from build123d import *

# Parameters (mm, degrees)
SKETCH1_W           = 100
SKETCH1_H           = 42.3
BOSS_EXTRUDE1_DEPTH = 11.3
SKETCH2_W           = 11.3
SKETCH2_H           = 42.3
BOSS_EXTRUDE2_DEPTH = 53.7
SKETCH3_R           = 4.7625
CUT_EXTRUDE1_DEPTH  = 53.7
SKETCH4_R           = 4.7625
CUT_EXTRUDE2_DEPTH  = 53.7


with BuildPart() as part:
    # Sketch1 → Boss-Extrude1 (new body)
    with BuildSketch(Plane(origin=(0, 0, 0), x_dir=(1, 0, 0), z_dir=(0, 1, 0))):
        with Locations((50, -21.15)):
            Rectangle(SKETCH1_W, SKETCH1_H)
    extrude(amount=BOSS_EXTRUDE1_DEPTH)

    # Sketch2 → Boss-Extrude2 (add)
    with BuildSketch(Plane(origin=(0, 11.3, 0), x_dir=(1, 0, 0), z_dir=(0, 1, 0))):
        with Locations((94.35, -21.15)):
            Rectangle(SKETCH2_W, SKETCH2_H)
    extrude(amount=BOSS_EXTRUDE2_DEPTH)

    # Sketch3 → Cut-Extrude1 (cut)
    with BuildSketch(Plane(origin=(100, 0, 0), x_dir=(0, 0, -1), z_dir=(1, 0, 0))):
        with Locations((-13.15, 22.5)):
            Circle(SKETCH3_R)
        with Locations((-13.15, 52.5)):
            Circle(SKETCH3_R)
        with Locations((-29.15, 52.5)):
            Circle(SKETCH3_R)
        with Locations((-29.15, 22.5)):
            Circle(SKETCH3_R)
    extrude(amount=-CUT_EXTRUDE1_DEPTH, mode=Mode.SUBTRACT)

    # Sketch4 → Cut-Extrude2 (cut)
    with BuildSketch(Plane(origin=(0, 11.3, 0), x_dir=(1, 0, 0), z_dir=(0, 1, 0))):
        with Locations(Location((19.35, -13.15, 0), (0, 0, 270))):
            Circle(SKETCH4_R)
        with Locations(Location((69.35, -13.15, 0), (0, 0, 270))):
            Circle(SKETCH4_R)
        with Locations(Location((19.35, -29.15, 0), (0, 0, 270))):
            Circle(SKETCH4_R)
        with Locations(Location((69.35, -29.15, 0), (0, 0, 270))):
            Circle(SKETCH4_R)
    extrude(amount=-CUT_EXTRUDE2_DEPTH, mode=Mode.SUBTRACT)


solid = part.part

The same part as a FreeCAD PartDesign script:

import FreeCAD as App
import Part
import Sketcher
Q = App.Units.Quantity


def add_polygon(sketch, points):
    """Adds a closed chain of lines whose ends are joined by coincident constraints."""
    first, n = sketch.GeometryCount, len(points)
    for a, b in zip(points, points[1:] + points[:1]):
        sketch.addGeometry(Part.LineSegment(App.Vector(*a, 0), App.Vector(*b, 0)), False)
    for i in range(n):
        sketch.addConstraint(Sketcher.Constraint("Coincident", first + i, 2, first + (i + 1) % n, 1))

doc = App.newDocument("Part")
body = doc.addObject("PartDesign::Body", "Body")

# Sketch on XZ plane
sketch1 = body.newObject("Sketcher::SketchObject", "Sketch")
sketch1.AttachmentSupport = (doc.getObject("XZ_Plane"), [""])
sketch1.MapMode = "FlatFace"
add_polygon(sketch1, [(0, 0), (0, 42.3), (100, 42.3), (100, 0)])  # lines 0-3
sketch1.addConstraint([
    Sketcher.Constraint("Vertical", 0),
    Sketcher.Constraint("Horizontal", 1),
    Sketcher.Constraint("Vertical", 2),
    Sketcher.Constraint("Horizontal", 3),
    Sketcher.Constraint("Coincident", 3, 2, -1, 1),
    Sketcher.Constraint("DistanceX", 1, 1, 1, 2, Q("100 mm")),
    Sketcher.Constraint("DistanceY", 0, 1, 0, 2, Q("42.3 mm")),
])
pad1 = body.newObject("PartDesign::Pad", "Pad")
pad1.Profile = sketch1
pad1.Length = 11.3
pad1.Reversed = True

# Sketch on XZ plane
sketch2 = body.newObject("Sketcher::SketchObject", "Sketch001")
sketch2.AttachmentSupport = (doc.getObject("XZ_Plane"), [""])
sketch2.MapMode = "FlatFace"
sketch2.AttachmentOffset = App.Placement(App.Vector(0, 0, -11.3), App.Rotation())
add_polygon(sketch2, [(88.7, 0), (88.7, 42.3), (100, 42.3), (100, 0)])  # lines 0-3
sketch2.addConstraint([
    Sketcher.Constraint("Vertical", 0),
    Sketcher.Constraint("Horizontal", 1),
    Sketcher.Constraint("Vertical", 2),
    Sketcher.Constraint("Horizontal", 3),
    Sketcher.Constraint("PointOnObject", 2, 2, -1),
    Sketcher.Constraint("DistanceX", 1, 1, 1, 2, Q("11.3 mm")),
    Sketcher.Constraint("DistanceY", 0, 1, 0, 2, Q("42.3 mm")),
    Sketcher.Constraint("DistanceX", -1, 1, 1, 2, Q("100 mm")),
])
pad2 = body.newObject("PartDesign::Pad", "Pad001")
pad2.Profile = sketch2
pad2.Length = 53.7
pad2.Reversed = True

# Sketch on YZ plane
sketch3 = body.newObject("Sketcher::SketchObject", "Sketch002")
sketch3.AttachmentSupport = (doc.getObject("YZ_Plane"), [""])
sketch3.MapMode = "FlatFace"
sketch3.AttachmentOffset = App.Placement(App.Vector(0, 0, 100), App.Rotation())
sketch3.addGeometry([
    Part.Circle(App.Vector(22.5, 13.15, 0), App.Vector(0, 0, 1), 4.7625),
    Part.Circle(App.Vector(52.5, 13.15, 0), App.Vector(0, 0, 1), 4.7625),
    Part.Circle(App.Vector(52.5, 29.15, 0), App.Vector(0, 0, 1), 4.7625),
    Part.Circle(App.Vector(22.5, 29.15, 0), App.Vector(0, 0, 1), 4.7625),
], False)
sketch3.addConstraint([
    Sketcher.Constraint("Equal", 0, 1),
    Sketcher.Constraint("Equal", 1, 2),
    Sketcher.Constraint("Equal", 2, 3),
    Sketcher.Constraint("Horizontal", 0, 3, 1, 3),
    Sketcher.Constraint("Horizontal", 2, 3, 3, 3),
    Sketcher.Constraint("Vertical", 1, 3, 2, 3),
    Sketcher.Constraint("Vertical", 0, 3, 3, 3),
    Sketcher.Constraint("Diameter", 0, Q("9.525 mm")),
    Sketcher.Constraint("DistanceX", 0, 3, 1, 3, Q("30 mm")),
    Sketcher.Constraint("DistanceY", 1, 3, 2, 3, Q("16 mm")),
    Sketcher.Constraint("DistanceX", -1, 1, 0, 3, Q("22.5 mm")),
    Sketcher.Constraint("DistanceY", -1, 1, 0, 3, Q("13.15 mm")),
])
pocket1 = body.newObject("PartDesign::Pocket", "Pocket")
pocket1.Profile = sketch3
pocket1.Length = 53.7

# Sketch on XZ plane
sketch4 = body.newObject("Sketcher::SketchObject", "Sketch003")
sketch4.AttachmentSupport = (doc.getObject("XZ_Plane"), [""])
sketch4.MapMode = "FlatFace"
sketch4.AttachmentOffset = App.Placement(App.Vector(0, 0, -11.3), App.Rotation())
sketch4.addGeometry([
    Part.Circle(App.Vector(19.35, 13.15, 0), App.Vector(0, 0, 1), 4.7625),
    Part.Circle(App.Vector(69.35, 13.15, 0), App.Vector(0, 0, 1), 4.7625),
    Part.Circle(App.Vector(19.35, 29.15, 0), App.Vector(0, 0, 1), 4.7625),
    Part.Circle(App.Vector(69.35, 29.15, 0), App.Vector(0, 0, 1), 4.7625),
], False)
sketch4.addConstraint([
    Sketcher.Constraint("Equal", 0, 1),
    Sketcher.Constraint("Equal", 1, 2),
    Sketcher.Constraint("Equal", 2, 3),
    Sketcher.Constraint("Horizontal", 0, 3, 1, 3),
    Sketcher.Constraint("Horizontal", 2, 3, 3, 3),
    Sketcher.Constraint("Vertical", 0, 3, 2, 3),
    Sketcher.Constraint("Vertical", 1, 3, 3, 3),
    Sketcher.Constraint("Diameter", 0, Q("9.525 mm")),
    Sketcher.Constraint("DistanceX", 0, 3, 1, 3, Q("50 mm")),
    Sketcher.Constraint("DistanceY", 0, 3, 2, 3, Q("16 mm")),
    Sketcher.Constraint("DistanceX", -1, 1, 0, 3, Q("19.35 mm")),
    Sketcher.Constraint("DistanceY", -1, 1, 0, 3, Q("13.15 mm")),
])
pocket2 = body.newObject("PartDesign::Pocket", "Pocket001")
pocket2.Profile = sketch4
pocket2.Length = 53.7
pocket2.Reversed = True

doc.recompute()
